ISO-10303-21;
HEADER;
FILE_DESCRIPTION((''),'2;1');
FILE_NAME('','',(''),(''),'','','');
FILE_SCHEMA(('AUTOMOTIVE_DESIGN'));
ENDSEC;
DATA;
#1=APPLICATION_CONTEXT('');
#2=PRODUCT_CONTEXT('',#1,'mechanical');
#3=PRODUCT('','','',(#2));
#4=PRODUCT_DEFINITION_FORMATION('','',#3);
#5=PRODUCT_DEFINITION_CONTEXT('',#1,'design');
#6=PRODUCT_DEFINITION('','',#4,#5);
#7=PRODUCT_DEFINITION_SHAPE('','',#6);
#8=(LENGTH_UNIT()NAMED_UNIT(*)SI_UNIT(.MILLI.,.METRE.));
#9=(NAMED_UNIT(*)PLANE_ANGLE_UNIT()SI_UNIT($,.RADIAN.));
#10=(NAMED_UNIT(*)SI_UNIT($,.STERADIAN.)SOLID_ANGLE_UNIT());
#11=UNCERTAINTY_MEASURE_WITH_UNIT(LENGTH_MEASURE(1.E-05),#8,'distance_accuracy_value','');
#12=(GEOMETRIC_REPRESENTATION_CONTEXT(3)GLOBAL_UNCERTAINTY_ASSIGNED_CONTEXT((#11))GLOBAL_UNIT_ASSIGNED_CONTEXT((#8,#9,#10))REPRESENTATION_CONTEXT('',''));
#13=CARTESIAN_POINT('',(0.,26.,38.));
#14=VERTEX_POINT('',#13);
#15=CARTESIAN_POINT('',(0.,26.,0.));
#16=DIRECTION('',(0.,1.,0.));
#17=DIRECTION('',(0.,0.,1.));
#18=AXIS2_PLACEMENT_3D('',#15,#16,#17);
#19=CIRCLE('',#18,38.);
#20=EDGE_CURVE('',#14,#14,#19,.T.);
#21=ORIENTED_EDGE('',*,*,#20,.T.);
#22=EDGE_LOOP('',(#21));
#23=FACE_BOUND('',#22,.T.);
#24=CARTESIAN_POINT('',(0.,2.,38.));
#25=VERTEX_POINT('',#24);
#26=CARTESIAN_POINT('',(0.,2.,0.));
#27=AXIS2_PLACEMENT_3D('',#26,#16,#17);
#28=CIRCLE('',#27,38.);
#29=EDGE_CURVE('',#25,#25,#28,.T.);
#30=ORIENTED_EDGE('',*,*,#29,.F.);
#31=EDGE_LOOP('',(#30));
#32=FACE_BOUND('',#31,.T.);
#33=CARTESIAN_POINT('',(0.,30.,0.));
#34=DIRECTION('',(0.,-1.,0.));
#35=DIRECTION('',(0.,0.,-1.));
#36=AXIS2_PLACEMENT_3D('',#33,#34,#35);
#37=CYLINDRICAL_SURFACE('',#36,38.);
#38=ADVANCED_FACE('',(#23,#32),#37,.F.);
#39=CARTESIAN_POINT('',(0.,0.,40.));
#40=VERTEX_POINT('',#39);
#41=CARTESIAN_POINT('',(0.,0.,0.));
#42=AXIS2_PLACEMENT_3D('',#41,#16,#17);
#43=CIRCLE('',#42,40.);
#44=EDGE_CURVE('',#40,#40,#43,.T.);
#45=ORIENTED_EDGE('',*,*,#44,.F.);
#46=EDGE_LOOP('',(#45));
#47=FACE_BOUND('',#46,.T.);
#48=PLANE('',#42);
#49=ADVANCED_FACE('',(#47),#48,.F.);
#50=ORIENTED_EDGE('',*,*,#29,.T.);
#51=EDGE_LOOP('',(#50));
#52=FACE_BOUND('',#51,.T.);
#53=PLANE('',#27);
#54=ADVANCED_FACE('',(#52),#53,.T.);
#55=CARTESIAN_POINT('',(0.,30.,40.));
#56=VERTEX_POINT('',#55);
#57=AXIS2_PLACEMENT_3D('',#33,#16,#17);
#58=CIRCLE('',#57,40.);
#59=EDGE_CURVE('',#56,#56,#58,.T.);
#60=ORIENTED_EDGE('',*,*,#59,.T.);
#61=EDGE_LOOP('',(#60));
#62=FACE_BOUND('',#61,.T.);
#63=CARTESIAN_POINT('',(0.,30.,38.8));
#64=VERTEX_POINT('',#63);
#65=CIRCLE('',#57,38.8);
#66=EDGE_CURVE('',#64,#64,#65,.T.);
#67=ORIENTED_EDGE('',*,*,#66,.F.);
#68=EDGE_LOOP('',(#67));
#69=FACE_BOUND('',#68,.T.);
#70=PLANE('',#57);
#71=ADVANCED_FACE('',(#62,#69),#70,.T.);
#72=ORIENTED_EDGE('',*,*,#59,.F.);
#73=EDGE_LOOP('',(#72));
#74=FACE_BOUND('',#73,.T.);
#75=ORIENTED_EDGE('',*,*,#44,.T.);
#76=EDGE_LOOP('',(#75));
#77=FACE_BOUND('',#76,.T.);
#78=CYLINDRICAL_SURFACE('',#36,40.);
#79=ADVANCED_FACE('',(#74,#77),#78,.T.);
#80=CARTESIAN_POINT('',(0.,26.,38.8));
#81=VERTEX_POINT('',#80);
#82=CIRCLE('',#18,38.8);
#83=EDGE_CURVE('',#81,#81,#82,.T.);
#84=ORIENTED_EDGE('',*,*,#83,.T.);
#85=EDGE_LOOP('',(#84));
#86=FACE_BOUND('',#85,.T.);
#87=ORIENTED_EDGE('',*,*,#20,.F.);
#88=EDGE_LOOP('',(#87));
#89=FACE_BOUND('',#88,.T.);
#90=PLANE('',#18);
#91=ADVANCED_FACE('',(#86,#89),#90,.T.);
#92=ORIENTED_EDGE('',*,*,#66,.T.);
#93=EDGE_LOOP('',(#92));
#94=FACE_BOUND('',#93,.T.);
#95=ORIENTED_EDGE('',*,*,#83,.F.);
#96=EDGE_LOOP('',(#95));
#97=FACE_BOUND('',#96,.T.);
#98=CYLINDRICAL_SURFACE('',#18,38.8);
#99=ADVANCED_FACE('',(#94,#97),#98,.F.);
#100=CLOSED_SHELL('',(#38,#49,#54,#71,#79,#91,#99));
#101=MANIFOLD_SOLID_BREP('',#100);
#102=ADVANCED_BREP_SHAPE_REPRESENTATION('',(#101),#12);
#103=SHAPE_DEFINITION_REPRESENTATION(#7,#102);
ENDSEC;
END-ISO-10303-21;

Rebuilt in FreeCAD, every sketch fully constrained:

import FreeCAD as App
import Part
import Sketcher

V = App.Vector


def faces_at(feature, points):
    """Names of the faces that lie closest to the given points."""
    faces = feature.Shape.Faces
    near = lambda p: min(range(len(faces)), key=lambda i: faces[i].distToShape(Part.Vertex(*p))[0])
    return sorted({f"Face{near(p) + 1}" for p in points})

doc = App.newDocument("Part")
body = doc.addObject("PartDesign::Body", "Body")

sketch1 = body.newObject("Sketcher::SketchObject", "Sketch")
sketch1.AttachmentSupport = (doc.getObject("XZ_Plane"), [""])
sketch1.MapMode = "FlatFace"
sketch1.addGeometry(Part.Circle(V(0, 0, 0), V(0, 0, 1), 40), False)
sketch1.addConstraint(Sketcher.Constraint("Coincident", 0, 3, -1, 1))
sketch1.addConstraint(Sketcher.Constraint("Diameter", 0, 80.0))
pad1 = body.newObject("PartDesign::Pad", "Pad")
pad1.Profile = sketch1
pad1.Length = 30
pad1.Reversed = True
doc.recompute()

thickness = body.newObject("PartDesign::Thickness", "Thickness")
thickness.Base = (pad1, faces_at(pad1, [(0, 30, 0)]))
thickness.Value = 2
thickness.Reversed = True
thickness.Join = "Intersection"

sketch2 = body.newObject("Sketcher::SketchObject", "Sketch001")
sketch2.AttachmentSupport = (doc.getObject("XZ_Plane"), [""])
sketch2.MapMode = "FlatFace"
sketch2.AttachmentOffset = App.Placement(V(0, 0, -30), App.Rotation())
sketch2.addGeometry(Part.Circle(V(0, 0, 0), V(0, 0, 1), 39), False)
sketch2.addConstraint(Sketcher.Constraint("Coincident", 0, 3, -1, 1))
sketch2.addConstraint(Sketcher.Constraint("Diameter", 0, 77.6))
pocket1 = body.newObject("PartDesign::Pocket", "Pocket")
pocket1.Profile = sketch2
pocket1.Length = 4
pocket1.Reversed = True

doc.recompute()
